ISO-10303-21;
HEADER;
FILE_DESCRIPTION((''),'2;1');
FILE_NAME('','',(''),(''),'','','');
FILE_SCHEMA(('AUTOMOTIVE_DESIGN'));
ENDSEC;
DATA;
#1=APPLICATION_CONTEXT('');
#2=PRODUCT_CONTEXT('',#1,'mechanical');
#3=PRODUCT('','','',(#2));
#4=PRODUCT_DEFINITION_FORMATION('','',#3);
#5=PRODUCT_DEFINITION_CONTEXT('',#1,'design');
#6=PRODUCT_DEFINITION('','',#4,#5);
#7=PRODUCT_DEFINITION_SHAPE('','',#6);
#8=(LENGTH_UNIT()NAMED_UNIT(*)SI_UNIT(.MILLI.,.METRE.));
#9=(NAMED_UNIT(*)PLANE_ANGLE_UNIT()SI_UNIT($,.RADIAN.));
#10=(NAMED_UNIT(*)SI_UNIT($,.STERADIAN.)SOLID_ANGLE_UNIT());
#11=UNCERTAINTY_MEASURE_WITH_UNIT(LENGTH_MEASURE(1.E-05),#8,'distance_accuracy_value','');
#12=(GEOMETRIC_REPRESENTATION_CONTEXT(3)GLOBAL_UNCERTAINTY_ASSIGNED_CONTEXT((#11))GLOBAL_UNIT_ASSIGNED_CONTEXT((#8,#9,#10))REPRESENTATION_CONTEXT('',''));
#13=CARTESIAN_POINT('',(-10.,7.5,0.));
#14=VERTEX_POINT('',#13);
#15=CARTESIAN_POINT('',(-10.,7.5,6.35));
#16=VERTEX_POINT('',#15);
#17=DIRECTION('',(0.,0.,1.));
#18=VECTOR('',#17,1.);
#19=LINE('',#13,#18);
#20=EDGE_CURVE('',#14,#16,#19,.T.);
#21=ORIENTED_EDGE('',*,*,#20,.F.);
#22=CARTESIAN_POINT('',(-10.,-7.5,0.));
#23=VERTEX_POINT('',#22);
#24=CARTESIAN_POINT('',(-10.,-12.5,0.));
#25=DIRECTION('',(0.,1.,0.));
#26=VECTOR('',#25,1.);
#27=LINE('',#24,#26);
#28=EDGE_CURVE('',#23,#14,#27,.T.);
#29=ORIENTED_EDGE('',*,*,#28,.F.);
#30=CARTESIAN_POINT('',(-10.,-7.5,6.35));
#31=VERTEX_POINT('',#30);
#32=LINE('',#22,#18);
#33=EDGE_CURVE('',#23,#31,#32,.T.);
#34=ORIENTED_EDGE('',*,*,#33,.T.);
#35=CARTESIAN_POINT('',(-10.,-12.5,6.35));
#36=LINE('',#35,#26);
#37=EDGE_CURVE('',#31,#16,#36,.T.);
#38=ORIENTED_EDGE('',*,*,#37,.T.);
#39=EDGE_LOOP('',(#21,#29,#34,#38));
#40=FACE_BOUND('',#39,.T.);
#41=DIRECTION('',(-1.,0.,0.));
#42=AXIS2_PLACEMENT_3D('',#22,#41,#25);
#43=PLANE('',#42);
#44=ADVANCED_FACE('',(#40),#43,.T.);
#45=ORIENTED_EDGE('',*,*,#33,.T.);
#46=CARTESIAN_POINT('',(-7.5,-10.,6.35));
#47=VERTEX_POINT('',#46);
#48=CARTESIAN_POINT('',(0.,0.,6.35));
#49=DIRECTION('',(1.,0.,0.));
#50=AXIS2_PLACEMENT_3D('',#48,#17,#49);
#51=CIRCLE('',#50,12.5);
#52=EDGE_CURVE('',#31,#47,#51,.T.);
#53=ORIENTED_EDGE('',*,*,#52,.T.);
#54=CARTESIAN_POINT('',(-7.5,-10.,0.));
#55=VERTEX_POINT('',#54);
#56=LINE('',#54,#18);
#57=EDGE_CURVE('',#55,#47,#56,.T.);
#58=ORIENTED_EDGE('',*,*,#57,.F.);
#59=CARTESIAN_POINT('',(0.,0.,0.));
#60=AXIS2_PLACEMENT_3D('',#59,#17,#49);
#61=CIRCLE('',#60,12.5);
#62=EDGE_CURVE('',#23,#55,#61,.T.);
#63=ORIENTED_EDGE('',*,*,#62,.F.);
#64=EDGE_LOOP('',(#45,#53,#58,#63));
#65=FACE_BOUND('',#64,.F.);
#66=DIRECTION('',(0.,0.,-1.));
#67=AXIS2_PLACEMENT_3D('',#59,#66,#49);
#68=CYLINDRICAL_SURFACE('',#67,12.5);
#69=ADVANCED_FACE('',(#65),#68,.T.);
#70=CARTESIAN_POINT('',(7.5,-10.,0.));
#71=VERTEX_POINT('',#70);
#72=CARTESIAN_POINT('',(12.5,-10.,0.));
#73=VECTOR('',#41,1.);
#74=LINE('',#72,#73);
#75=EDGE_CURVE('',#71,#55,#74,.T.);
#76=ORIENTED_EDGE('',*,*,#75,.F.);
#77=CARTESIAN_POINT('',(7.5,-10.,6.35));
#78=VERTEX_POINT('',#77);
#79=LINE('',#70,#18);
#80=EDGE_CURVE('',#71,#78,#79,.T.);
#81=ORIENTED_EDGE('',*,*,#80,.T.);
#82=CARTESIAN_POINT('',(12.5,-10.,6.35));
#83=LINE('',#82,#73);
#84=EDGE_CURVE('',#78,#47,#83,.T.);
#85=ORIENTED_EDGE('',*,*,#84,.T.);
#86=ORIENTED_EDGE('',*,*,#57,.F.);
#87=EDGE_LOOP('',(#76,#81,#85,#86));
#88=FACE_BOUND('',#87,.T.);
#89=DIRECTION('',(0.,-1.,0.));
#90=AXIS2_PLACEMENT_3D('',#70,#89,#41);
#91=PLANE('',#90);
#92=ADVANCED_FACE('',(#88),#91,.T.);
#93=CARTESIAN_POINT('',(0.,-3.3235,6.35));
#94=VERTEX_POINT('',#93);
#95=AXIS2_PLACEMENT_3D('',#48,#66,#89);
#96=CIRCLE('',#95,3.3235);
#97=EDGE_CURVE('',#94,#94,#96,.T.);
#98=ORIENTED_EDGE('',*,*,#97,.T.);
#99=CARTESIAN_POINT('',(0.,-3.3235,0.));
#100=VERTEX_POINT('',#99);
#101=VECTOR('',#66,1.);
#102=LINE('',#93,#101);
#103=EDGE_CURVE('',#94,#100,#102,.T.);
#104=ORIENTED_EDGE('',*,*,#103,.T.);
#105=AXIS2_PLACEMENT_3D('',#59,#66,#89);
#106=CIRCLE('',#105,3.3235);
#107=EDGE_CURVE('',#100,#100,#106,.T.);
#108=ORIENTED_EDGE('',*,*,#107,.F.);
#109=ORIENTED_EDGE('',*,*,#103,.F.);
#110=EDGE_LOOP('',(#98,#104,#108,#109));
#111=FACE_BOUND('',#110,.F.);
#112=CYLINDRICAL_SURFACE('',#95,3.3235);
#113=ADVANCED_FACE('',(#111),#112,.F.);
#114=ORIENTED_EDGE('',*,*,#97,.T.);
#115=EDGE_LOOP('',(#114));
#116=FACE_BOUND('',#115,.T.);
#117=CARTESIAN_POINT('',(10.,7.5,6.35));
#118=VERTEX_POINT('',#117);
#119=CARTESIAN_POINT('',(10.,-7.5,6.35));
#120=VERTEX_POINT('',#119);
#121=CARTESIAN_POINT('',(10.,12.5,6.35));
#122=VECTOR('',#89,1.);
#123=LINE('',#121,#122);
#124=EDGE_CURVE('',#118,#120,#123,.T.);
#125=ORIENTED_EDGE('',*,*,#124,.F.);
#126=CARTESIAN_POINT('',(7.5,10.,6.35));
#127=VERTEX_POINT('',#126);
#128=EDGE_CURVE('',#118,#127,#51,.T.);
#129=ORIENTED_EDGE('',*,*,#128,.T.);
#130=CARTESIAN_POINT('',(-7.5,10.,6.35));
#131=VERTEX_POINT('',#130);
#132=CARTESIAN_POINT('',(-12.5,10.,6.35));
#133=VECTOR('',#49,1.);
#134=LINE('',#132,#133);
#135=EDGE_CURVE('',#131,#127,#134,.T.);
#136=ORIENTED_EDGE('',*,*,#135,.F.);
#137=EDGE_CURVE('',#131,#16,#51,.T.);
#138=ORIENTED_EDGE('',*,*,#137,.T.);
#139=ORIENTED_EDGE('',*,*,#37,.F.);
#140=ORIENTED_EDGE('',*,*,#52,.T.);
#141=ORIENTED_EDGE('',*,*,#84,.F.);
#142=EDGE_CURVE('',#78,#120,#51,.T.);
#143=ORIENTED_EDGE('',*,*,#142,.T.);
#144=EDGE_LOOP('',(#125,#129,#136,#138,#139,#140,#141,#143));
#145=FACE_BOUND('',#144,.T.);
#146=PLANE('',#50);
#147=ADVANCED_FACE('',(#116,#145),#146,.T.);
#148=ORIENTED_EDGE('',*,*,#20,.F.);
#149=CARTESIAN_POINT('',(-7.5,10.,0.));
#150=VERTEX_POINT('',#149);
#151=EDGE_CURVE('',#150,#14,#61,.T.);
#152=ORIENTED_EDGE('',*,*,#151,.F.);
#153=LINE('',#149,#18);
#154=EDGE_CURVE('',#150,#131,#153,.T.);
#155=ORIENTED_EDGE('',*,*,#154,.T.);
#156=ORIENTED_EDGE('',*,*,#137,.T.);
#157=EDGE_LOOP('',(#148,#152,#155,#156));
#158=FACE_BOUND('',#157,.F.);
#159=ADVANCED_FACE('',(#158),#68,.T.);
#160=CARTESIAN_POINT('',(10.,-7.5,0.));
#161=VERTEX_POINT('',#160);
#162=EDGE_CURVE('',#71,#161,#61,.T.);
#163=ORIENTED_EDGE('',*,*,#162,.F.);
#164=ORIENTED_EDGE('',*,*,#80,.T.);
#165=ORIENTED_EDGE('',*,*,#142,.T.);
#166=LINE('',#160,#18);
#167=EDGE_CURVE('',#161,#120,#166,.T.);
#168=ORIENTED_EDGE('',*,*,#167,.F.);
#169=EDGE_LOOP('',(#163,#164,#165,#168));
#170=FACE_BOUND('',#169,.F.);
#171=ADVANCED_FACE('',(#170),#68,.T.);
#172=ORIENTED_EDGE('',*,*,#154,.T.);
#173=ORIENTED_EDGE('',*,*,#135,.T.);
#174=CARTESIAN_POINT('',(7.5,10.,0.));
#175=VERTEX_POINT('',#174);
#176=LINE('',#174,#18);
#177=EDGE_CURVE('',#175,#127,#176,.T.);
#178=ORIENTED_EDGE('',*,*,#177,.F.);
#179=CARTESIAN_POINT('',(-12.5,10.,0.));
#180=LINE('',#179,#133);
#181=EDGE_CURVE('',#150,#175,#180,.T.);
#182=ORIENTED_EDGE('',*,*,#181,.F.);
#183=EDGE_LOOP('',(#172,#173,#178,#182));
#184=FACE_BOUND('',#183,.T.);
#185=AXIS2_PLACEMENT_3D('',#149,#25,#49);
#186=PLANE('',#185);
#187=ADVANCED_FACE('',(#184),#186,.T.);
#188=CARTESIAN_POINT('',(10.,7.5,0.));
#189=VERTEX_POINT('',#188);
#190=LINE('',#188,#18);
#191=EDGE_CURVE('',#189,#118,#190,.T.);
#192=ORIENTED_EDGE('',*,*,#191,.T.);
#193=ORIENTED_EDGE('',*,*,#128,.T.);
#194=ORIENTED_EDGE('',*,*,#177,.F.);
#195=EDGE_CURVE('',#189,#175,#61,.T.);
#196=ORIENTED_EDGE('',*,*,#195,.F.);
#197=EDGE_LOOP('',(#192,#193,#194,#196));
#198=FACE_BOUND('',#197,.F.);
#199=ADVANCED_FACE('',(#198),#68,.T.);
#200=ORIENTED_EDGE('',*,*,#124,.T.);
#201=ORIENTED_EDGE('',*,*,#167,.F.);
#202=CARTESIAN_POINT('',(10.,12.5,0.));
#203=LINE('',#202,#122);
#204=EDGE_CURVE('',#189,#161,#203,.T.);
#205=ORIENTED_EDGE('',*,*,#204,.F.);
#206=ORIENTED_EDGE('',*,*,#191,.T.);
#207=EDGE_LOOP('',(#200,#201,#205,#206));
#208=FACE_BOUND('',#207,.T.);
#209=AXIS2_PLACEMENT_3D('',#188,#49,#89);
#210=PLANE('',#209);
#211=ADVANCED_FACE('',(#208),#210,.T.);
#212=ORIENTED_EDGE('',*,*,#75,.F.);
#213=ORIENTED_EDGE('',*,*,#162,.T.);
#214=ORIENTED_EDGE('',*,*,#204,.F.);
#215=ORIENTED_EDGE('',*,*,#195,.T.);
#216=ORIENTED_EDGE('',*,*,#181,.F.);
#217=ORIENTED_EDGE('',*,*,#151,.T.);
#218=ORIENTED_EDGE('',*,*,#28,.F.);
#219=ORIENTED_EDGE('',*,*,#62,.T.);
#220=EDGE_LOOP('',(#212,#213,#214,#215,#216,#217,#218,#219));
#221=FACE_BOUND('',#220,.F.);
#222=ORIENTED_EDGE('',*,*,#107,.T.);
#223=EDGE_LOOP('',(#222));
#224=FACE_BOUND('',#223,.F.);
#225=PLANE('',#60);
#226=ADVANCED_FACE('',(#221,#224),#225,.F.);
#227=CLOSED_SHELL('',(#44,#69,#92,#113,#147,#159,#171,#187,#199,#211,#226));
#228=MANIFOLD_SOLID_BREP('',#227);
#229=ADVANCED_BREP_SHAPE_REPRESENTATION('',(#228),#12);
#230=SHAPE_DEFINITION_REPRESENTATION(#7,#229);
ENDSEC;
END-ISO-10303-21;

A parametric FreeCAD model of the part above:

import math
import FreeCAD as App
import Part
import Sketcher

doc = App.newDocument("Part")
body = doc.addObject("PartDesign::Body", "Body")

sketch1 = body.newObject("Sketcher::SketchObject", "Sketch")
sketch1.AttachmentSupport = (doc.getObject("XY_Plane"), [""])
sketch1.MapMode = "FlatFace"
sketch1.addGeometry([
    Part.LineSegment(App.Vector(10, -7.5, 0), App.Vector(10, 7.5, 0)),
    Part.ArcOfCircle(Part.Circle(App.Vector(0, 0, 0), App.Vector(0, 0, 1), 12.5), math.radians(36.869898), math.radians(53.130102)),
    Part.LineSegment(App.Vector(7.5, 10, 0), App.Vector(-7.5, 10, 0)),
    Part.ArcOfCircle(Part.Circle(App.Vector(0, 0, 0), App.Vector(0, 0, 1), 12.5), math.radians(126.869898), math.radians(143.130102)),
    Part.LineSegment(App.Vector(-10, 7.5, 0), App.Vector(-10, -7.5, 0)),
    Part.ArcOfCircle(Part.Circle(App.Vector(0, 0, 0), App.Vector(0, 0, 1), 12.5), math.radians(-143.130102), math.radians(-126.869898)),
    Part.LineSegment(App.Vector(-7.5, -10, 0), App.Vector(7.5, -10, 0)),
    Part.ArcOfCircle(Part.Circle(App.Vector(0, 0, 0), App.Vector(0, 0, 1), 12.5), math.radians(-53.130102), math.radians(-36.869898)),
], False)
sketch1.addConstraint([
    Sketcher.Constraint("Coincident", 0, 2, 1, 1),
    Sketcher.Constraint("Coincident", 1, 2, 2, 1),
    Sketcher.Constraint("Coincident", 2, 2, 3, 1),
    Sketcher.Constraint("Coincident", 3, 2, 4, 1),
    Sketcher.Constraint("Coincident", 4, 2, 5, 1),
    Sketcher.Constraint("Coincident", 5, 2, 6, 1),
    Sketcher.Constraint("Coincident", 6, 2, 7, 1),
    Sketcher.Constraint("Coincident", 7, 2, 0, 1),
    Sketcher.Constraint("Vertical", 0),
    Sketcher.Constraint("Horizontal", 2),
    Sketcher.Constraint("Vertical", 4),
    Sketcher.Constraint("Horizontal", 6),
    Sketcher.Constraint("Coincident", 1, 3, -1, 1),
    Sketcher.Constraint("Coincident", 3, 3, -1, 1),
    Sketcher.Constraint("Coincident", 5, 3, -1, 1),
    Sketcher.Constraint("Coincident", 7, 3, -1, 1),
    Sketcher.Constraint("Equal", 1, 3),
    Sketcher.Constraint("Equal", 3, 5),
    Sketcher.Constraint("Equal", 5, 7),
    Sketcher.Constraint("Horizontal", 0, 2, 3, 2),
    Sketcher.Constraint("Vertical", 2, 2, 5, 2),
    Sketcher.Constraint("Equal", 6, 0),
    Sketcher.Constraint("Radius", 1, 12.5),
    Sketcher.Constraint("DistanceX", 2, 2, 2, 1, 15.0),
])
pad1 = body.newObject("PartDesign::Pad", "Pad")
pad1.Profile = sketch1
pad1.Length = 6.35

sketch2 = body.newObject("Sketcher::SketchObject", "Sketch001")
sketch2.AttachmentSupport = (doc.getObject("XY_Plane"), [""])
sketch2.MapMode = "FlatFace"
sketch2.AttachmentOffset = App.Placement(App.Vector(0, 0, 6.35), App.Rotation())
sketch2.addGeometry(Part.Circle(App.Vector(0, 0, 0), App.Vector(0, 0, 1), 3.3235), False)
sketch2.addConstraint([
    Sketcher.Constraint("Coincident", 0, 3, -1, 1),
    Sketcher.Constraint("Diameter", 0, 6.647),
])
doc.recompute()
hole = body.newObject("PartDesign::Hole", "Hole")
hole.Profile = sketch2
hole.ThreadType = "None"
hole.Diameter = 6.647
hole.DepthType = "ThroughAll"

doc.recompute()
